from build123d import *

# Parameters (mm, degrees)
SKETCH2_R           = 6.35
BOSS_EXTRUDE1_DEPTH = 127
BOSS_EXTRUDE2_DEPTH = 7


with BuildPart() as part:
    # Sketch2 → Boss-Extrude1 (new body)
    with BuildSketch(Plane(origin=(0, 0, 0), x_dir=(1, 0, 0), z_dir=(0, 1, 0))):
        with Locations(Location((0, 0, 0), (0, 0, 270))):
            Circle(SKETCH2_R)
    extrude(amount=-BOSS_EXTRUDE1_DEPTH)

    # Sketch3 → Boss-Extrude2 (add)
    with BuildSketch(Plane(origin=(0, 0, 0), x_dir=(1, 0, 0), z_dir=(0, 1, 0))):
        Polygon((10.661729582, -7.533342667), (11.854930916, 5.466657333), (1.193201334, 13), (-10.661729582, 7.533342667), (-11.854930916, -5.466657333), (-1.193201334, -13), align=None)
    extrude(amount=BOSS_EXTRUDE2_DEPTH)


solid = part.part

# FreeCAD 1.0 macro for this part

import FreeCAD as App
import Part
import Sketcher
from FreeCAD import Vector
Q = App.Units.Quantity

doc = App.newDocument("Part")
body = doc.addObject("PartDesign::Body", "Body")

# Sketch on XZ plane
sketch1 = body.newObject("Sketcher::SketchObject", "Sketch")
sketch1.AttachmentSupport = (doc.getObject("XZ_Plane"), [""])
sketch1.MapMode = "FlatFace"
sketch1.addGeometry(Part.Circle(Vector(0, 0, 0), Vector(0, 0, 1), 6), False)
sketch1.addConstraint(Sketcher.Constraint("Coincident", 0, 3, -1, 1))
sketch1.addConstraint(Sketcher.Constraint("Diameter", 0, Q("0.5 in")))
pad1 = body.newObject("PartDesign::Pad", "Pad")
pad1.Profile = sketch1
pad1.Length = Q("5 in")

# Sketch on XZ plane
sketch2 = body.newObject("Sketcher::SketchObject", "Sketch001")
sketch2.AttachmentSupport = (doc.getObject("XZ_Plane"), [""])
sketch2.MapMode = "FlatFace"
sketch2.addGeometry(Part.LineSegment(Vector(11, 8, 0), Vector(12, -5, 0)), False)
sketch2.addGeometry(Part.LineSegment(Vector(12, -5, 0), Vector(1, -13, 0)), False)
sketch2.addGeometry(Part.LineSegment(Vector(1, -13, 0), Vector(-11, -8, 0)), False)
sketch2.addGeometry(Part.LineSegment(Vector(-11, -8, 0), Vector(-12, 5, 0)), False)
sketch2.addGeometry(Part.LineSegment(Vector(-12, 5, 0), Vector(-1, 13, 0)), False)
sketch2.addGeometry(Part.LineSegment(Vector(-1, 13, 0), Vector(11, 8, 0)), False)
sketch2.addConstraint(Sketcher.Constraint("Coincident", 0, 2, 1, 1))
sketch2.addConstraint(Sketcher.Constraint("Coincident", 1, 2, 2, 1))
sketch2.addConstraint(Sketcher.Constraint("Coincident", 2, 2, 3, 1))
sketch2.addConstraint(Sketcher.Constraint("Coincident", 3, 2, 4, 1))
sketch2.addConstraint(Sketcher.Constraint("Coincident", 4, 2, 5, 1))
sketch2.addConstraint(Sketcher.Constraint("Coincident", 5, 2, 0, 1))
sketch2.addConstraint(Sketcher.Constraint("Symmetric", 0, 2, 3, 2, -1, 1))
sketch2.addConstraint(Sketcher.Constraint("Symmetric", 1, 2, 4, 2, -1, 1))
sketch2.addConstraint(Sketcher.Constraint("Symmetric", 2, 2, 5, 2, -1, 1))
sketch2.addConstraint(Sketcher.Constraint("Equal", 0, 1))
sketch2.addConstraint(Sketcher.Constraint("Equal", 1, 2))
sketch2.addConstraint(Sketcher.Constraint("DistanceX", -1, 1, 1, 2, 1.193201))
sketch2.addConstraint(Sketcher.Constraint("DistanceY", 1, 2, -1, 1, 13.0))
sketch2.addConstraint(Sketcher.Constraint("DistanceX", 3, 2, 2, 2, 1.193201))
sketch2.addConstraint(Sketcher.Constraint("DistanceY", 2, 2, 3, 2, 13.0))
pad2 = body.newObject("PartDesign::Pad", "Pad001")
pad2.Profile = sketch2
pad2.Length = 7
pad2.Reversed = True

doc.recompute()
